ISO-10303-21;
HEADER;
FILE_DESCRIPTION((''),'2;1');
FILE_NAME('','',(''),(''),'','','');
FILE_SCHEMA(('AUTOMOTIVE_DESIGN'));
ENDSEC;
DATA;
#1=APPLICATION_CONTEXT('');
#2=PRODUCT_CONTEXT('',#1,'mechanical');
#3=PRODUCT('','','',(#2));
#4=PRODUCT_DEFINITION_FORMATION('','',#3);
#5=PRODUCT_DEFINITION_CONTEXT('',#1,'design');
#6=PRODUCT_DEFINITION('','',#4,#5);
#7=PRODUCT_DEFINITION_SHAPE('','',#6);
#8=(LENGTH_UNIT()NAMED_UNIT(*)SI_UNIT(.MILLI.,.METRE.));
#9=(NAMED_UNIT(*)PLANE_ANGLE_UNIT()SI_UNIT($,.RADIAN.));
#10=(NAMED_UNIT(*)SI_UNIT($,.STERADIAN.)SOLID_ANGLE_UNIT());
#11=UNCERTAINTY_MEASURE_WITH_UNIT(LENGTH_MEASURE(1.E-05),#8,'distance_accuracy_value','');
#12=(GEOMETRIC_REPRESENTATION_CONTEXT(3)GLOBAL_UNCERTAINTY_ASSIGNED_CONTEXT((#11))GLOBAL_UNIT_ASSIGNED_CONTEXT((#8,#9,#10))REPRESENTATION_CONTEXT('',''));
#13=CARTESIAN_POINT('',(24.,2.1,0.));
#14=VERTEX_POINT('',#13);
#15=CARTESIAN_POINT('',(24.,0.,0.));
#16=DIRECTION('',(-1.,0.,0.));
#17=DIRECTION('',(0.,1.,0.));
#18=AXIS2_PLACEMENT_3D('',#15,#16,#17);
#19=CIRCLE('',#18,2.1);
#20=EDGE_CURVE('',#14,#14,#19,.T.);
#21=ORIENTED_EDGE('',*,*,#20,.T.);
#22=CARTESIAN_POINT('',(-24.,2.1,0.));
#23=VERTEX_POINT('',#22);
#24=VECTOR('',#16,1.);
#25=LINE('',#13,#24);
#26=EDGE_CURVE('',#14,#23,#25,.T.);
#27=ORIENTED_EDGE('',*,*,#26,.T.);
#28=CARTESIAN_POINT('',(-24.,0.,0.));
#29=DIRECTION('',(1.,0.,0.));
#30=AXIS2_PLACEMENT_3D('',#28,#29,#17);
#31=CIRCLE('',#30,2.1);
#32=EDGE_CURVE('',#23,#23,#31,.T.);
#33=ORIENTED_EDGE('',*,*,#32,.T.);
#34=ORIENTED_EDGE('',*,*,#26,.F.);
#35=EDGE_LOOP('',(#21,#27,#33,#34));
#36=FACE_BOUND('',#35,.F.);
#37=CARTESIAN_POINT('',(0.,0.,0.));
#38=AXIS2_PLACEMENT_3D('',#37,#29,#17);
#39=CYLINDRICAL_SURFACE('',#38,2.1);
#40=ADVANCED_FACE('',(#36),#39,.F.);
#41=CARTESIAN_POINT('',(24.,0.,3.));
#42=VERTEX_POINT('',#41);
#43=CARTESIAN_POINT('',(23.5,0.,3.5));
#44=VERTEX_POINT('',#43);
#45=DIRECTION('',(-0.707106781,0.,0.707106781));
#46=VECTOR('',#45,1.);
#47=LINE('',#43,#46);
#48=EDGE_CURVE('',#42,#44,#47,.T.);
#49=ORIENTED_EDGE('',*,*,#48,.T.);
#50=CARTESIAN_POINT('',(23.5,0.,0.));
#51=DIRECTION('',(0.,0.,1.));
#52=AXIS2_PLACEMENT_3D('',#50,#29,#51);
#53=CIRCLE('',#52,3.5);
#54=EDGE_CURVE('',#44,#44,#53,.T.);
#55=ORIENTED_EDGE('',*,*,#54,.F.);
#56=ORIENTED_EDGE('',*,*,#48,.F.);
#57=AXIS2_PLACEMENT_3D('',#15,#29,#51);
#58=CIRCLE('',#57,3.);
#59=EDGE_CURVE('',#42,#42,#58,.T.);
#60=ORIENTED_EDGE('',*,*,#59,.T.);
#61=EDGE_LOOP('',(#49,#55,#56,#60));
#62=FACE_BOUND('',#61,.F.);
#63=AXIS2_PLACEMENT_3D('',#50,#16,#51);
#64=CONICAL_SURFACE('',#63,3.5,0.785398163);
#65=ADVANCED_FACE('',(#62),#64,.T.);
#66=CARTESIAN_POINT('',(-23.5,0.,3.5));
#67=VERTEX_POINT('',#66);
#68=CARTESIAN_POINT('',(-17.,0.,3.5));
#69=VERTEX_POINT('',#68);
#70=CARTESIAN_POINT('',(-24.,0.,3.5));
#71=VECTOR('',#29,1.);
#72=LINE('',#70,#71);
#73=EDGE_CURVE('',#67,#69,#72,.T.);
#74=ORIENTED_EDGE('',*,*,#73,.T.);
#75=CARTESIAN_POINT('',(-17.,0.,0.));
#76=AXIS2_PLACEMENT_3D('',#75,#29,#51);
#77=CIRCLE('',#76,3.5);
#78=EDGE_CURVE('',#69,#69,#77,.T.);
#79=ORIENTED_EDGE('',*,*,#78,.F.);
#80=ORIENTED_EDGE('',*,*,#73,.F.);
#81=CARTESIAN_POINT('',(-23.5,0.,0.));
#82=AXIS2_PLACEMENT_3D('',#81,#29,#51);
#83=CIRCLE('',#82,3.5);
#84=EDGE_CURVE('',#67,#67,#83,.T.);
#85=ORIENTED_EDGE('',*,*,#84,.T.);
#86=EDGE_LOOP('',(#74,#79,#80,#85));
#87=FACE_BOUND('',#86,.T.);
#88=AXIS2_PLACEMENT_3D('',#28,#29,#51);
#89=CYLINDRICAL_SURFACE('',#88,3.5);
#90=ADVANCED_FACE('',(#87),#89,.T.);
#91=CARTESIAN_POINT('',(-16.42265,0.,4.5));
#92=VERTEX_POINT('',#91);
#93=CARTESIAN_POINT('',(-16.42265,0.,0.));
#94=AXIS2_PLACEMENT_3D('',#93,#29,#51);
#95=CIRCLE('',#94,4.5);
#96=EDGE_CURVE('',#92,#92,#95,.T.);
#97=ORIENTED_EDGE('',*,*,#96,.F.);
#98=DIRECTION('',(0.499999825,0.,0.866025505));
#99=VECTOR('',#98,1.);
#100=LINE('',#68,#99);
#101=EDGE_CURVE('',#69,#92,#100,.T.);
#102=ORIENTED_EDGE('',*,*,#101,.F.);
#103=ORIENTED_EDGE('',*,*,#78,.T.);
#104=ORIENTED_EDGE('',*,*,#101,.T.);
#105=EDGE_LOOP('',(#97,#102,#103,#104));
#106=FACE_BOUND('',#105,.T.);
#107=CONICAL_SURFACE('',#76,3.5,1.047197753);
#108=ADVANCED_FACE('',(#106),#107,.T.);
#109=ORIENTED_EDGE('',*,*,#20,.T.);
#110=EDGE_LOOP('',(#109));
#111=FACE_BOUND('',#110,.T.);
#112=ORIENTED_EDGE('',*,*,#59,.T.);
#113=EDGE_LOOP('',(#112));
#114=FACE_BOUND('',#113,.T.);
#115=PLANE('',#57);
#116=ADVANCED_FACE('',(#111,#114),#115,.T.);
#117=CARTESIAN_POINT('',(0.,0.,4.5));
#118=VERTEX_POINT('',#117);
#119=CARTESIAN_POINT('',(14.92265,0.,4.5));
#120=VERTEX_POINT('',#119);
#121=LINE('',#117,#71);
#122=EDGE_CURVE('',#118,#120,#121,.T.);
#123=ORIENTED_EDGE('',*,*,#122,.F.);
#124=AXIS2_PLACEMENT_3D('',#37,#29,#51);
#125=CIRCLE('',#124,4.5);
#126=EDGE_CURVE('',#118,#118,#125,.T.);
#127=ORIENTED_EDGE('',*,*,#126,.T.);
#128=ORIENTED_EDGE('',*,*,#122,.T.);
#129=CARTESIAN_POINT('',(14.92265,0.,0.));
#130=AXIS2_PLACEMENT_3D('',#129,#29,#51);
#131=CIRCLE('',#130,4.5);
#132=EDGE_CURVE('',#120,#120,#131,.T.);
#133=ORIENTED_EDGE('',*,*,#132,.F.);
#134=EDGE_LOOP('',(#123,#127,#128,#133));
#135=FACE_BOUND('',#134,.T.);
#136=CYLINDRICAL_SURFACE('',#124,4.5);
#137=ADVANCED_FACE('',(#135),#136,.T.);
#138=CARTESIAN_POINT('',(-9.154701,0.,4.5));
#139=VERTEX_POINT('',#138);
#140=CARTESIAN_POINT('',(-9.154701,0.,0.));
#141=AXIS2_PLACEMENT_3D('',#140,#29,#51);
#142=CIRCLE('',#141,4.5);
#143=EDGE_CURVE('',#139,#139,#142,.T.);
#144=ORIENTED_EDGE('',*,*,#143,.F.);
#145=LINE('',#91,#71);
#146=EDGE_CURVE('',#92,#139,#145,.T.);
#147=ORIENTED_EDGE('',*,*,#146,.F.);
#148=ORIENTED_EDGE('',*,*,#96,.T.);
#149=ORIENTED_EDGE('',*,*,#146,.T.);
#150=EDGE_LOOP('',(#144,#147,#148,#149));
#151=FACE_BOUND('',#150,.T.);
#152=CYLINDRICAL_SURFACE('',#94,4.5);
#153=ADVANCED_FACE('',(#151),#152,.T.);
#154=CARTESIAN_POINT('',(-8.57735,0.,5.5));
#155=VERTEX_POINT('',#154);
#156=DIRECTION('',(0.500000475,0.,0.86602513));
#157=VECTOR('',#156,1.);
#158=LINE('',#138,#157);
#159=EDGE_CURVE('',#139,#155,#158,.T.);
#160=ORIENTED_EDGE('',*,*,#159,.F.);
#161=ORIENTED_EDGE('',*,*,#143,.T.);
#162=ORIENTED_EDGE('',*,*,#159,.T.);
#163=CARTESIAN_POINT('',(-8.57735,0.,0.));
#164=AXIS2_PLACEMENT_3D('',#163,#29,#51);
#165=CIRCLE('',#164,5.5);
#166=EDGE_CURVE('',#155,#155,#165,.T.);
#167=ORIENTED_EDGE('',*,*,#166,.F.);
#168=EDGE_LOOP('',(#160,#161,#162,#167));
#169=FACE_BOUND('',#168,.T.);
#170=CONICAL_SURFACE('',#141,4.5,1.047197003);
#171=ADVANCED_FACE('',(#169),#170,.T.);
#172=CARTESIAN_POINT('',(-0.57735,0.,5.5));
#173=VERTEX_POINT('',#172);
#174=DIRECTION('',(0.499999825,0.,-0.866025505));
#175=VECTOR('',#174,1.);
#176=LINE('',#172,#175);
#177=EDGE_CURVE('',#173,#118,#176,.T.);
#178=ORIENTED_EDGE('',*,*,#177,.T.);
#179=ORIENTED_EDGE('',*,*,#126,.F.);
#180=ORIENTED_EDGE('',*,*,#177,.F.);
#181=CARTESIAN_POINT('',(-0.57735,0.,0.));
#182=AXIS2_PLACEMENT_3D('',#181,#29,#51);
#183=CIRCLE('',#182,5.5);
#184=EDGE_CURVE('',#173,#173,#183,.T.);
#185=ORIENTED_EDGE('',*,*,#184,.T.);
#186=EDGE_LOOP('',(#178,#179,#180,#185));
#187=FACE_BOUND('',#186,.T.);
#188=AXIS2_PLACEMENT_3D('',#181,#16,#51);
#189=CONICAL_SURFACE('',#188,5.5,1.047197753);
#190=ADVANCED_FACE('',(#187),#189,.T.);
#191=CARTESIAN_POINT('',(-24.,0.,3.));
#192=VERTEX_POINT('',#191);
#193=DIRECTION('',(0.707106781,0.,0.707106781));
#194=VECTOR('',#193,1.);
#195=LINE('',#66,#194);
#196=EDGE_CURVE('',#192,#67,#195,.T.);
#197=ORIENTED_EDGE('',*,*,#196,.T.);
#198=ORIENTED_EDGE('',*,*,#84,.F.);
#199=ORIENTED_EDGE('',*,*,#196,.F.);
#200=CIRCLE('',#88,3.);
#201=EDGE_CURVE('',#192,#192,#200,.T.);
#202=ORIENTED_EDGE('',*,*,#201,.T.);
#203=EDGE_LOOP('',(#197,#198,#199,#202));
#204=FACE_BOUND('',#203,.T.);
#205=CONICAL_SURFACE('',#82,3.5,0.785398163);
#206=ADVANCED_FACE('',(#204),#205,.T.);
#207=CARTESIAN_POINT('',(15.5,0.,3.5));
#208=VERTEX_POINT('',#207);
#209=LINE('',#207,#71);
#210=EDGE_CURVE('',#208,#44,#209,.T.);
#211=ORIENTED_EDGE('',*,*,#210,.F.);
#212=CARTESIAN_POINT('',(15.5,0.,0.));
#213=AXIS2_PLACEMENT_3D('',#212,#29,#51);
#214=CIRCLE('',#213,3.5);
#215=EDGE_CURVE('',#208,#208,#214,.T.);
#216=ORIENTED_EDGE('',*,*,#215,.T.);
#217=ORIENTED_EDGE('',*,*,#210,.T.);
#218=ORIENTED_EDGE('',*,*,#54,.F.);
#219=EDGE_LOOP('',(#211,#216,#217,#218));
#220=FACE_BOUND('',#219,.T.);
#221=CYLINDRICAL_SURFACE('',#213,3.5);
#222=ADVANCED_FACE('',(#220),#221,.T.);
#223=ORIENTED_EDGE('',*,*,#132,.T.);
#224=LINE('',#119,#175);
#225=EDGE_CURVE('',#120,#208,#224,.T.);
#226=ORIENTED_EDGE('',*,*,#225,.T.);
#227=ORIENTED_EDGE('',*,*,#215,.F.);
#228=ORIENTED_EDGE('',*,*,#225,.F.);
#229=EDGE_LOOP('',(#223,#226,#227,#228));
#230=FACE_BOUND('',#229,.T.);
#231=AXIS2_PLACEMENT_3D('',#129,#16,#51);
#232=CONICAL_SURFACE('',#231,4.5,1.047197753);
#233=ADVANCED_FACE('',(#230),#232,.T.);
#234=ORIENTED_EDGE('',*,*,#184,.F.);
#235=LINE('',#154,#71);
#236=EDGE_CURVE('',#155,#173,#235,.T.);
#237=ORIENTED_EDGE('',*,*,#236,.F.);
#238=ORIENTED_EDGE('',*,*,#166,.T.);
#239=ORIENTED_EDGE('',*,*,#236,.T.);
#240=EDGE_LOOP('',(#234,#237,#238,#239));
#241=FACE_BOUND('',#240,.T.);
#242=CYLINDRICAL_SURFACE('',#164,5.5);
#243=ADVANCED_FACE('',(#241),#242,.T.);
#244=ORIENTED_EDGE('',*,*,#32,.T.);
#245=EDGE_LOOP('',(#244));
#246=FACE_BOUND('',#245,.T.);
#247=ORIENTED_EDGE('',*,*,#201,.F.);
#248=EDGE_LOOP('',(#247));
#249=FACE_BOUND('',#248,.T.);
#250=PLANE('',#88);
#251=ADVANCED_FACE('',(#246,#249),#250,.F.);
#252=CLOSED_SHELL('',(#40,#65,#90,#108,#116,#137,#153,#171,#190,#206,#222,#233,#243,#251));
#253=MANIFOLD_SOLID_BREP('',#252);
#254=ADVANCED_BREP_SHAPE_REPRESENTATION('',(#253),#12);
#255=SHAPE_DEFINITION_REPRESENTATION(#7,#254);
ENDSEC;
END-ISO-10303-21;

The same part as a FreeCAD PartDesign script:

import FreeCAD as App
import Part
import Sketcher
from FreeCAD import Vector
Q = App.Units.Quantity


def edges_at(feature, points):
    """Names of the edges that pass closest to the given points."""
    edges = feature.Shape.Edges
    near = lambda p: min(range(len(edges)), key=lambda i: edges[i].distToShape(Part.Vertex(*p))[0])
    return sorted({f"Edge{near(p) + 1}" for p in points})

doc = App.newDocument("Part")
body = doc.addObject("PartDesign::Body", "Body")

sketch1 = body.newObject("Sketcher::SketchObject", "Sketch")
sketch1.AttachmentSupport = (doc.getObject("XZ_Plane"), [""])
sketch1.MapMode = "FlatFace"
sketch1.addGeometry([
    Part.LineSegment(Vector(-24, 0, 0), Vector(24, 0, 0)),
    Part.LineSegment(Vector(24, 0, 0), Vector(24, 3.5, 0)),
    Part.LineSegment(Vector(24, 3.5, 0), Vector(15.5, 3.5, 0)),
    Part.LineSegment(Vector(15.5, 3.5, 0), Vector(14.9, 4.5, 0)),
    Part.LineSegment(Vector(14.9, 4.5, 0), Vector(0, 4.5, 0)),
    Part.LineSegment(Vector(0, 4.5, 0), Vector(-0.6, 5.5, 0)),
    Part.LineSegment(Vector(-0.6, 5.5, 0), Vector(-8.6, 5.5, 0)),
    Part.LineSegment(Vector(-8.6, 5.5, 0), Vector(-9.2, 4.5, 0)),
    Part.LineSegment(Vector(-9.2, 4.5, 0), Vector(-16.4, 4.5, 0)),
    Part.LineSegment(Vector(-16.4, 4.5, 0), Vector(-17, 3.5, 0)),
    Part.LineSegment(Vector(-17, 3.5, 0), Vector(-24, 3.5, 0)),
    Part.LineSegment(Vector(-24, 3.5, 0), Vector(-24, 0, 0)),
], False)
sketch1.addConstraint([
    Sketcher.Constraint("Coincident", 0, 2, 1, 1),
    Sketcher.Constraint("Coincident", 1, 2, 2, 1),
    Sketcher.Constraint("Coincident", 2, 2, 3, 1),
    Sketcher.Constraint("Coincident", 3, 2, 4, 1),
    Sketcher.Constraint("Coincident", 4, 2, 5, 1),
    Sketcher.Constraint("Coincident", 5, 2, 6, 1),
    Sketcher.Constraint("Coincident", 6, 2, 7, 1),
    Sketcher.Constraint("Coincident", 7, 2, 8, 1),
    Sketcher.Constraint("Coincident", 8, 2, 9, 1),
    Sketcher.Constraint("Coincident", 9, 2, 10, 1),
    Sketcher.Constraint("Coincident", 10, 2, 11, 1),
    Sketcher.Constraint("Coincident", 11, 2, 0, 1),
    Sketcher.Constraint("Horizontal", 0),
    Sketcher.Constraint("Vertical", 1),
    Sketcher.Constraint("Horizontal", 2),
    Sketcher.Constraint("Horizontal", 4),
    Sketcher.Constraint("Horizontal", 6),
    Sketcher.Constraint("Horizontal", 8),
    Sketcher.Constraint("Horizontal", 10),
    Sketcher.Constraint("Vertical", 11),
    Sketcher.Constraint("Symmetric", 0, 2, 11, 2, -1, 1),
    Sketcher.Constraint("PointOnObject", 4, 2, -2),
    Sketcher.Constraint("Parallel", 3, 5),
    Sketcher.Constraint("Parallel", 7, 9),
    Sketcher.Constraint("Horizontal", 4, 2, 7, 2),
    Sketcher.Constraint("Horizontal", 2, 2, 9, 2),
    Sketcher.Constraint("Equal", 3, 5),
    Sketcher.Constraint("Equal", 5, 7),
    Sketcher.Constraint("DistanceX", 0, 1, 0, 2, Q("48 mm")),
    Sketcher.Constraint("DistanceX", 6, 2, 6, 1, Q("8 mm")),
    Sketcher.Constraint("DistanceX", 10, 2, 10, 1, Q("7 mm")),
    Sketcher.Constraint("Angle", 3, Q("119.999988 deg")),
    Sketcher.Constraint("DistanceX", 2, 2, 2, 1, Q("8.5 mm")),
    Sketcher.Constraint("DistanceY", 1, 1, 1, 2, Q("3.5 mm")),
    Sketcher.Constraint("DistanceY", 2, 2, 3, 2, Q("1 mm")),
])
revolution = body.newObject("PartDesign::Revolution", "Revolution")
revolution.Profile = sketch1
revolution.ReferenceAxis = (sketch1, ["H_Axis"])
revolution.Angle = 360

sketch2 = body.newObject("Sketcher::SketchObject", "Sketch001")
sketch2.AttachmentSupport = (doc.getObject("YZ_Plane"), [""])
sketch2.MapMode = "FlatFace"
sketch2.addGeometry(Part.Circle(Vector(0, 0, 0), Vector(0, 0, 1), 2.1), False)
sketch2.addConstraint([
    Sketcher.Constraint("Coincident", 0, 3, -1, 1),
    Sketcher.Constraint("Diameter", 0, Q("4.2 mm")),
])
pocket1 = body.newObject("PartDesign::Pocket", "Pocket")
pocket1.Profile = sketch2
pocket1.Type = "ThroughAll"
pocket1.Midplane = True
doc.recompute()

chamfer = body.newObject("PartDesign::Chamfer", "Chamfer")
chamfer.Base = (pocket1, edges_at(pocket1, [(-24, 0, -3.5), (24, 0, -3.5)]))
chamfer.Size = 0.5

doc.recompute()
